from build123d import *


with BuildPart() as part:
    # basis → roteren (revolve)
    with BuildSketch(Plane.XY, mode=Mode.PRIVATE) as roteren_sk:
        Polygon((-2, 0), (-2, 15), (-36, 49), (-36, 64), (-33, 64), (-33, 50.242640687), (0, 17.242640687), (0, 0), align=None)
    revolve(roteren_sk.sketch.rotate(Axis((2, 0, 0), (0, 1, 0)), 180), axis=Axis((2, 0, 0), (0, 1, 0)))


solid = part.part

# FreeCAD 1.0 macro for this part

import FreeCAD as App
import Part
import Sketcher
Q = App.Units.Quantity


def add_polygon(sketch, points):
    """Adds a closed chain of lines whose ends are joined by coincident constraints."""
    first, n = sketch.GeometryCount, len(points)
    for a, b in zip(points, points[1:] + points[:1]):
        sketch.addGeometry(Part.LineSegment(App.Vector(*a, 0), App.Vector(*b, 0)), False)
    for i in range(n):
        sketch.addConstraint(Sketcher.Constraint("Coincident", first + i, 2, first + (i + 1) % n, 1))

doc = App.newDocument("Part")
params = doc.addObject("Spreadsheet::Sheet", "Params")
for row, (alias, value) in enumerate([
    ("sketch1_width", "2 mm"),
    ("sketch1_width2", "3 mm"),
    ("sketch1_height", "15 mm"),
    ("sketch1_height2", "64 mm"),
    ("revolution_angle", "360 deg"),
], start=1):
    params.set(f"A{row}", alias)
    params.set(f"B{row}", "=" + value)
    params.setAlias(f"B{row}", alias)

body = doc.addObject("PartDesign::Body", "Body")

# Sketch on XY plane
sketch1 = doc.addObject("Sketcher::SketchObject", "Sketch")
body.addObject(sketch1)
sketch1.AttachmentSupport = (doc.XY_Plane, [""])
sketch1.MapMode = "FlatFace"
add_polygon(sketch1, [(-2, 15), (-2, 0), (0, 0), (0, 17.2), (-33, 50.2), (-33, 64), (-36, 64), (-36, 49)])  # lines 0-7
sketch1.addGeometry(Part.LineSegment(App.Vector(2, 0, 0), App.Vector(2, 64, 0)), True)  # axis
sketch1.addConstraint([
    Sketcher.Constraint("Vertical", 0),
    Sketcher.Constraint("Horizontal", 1),
    Sketcher.Constraint("Vertical", 2),
    Sketcher.Constraint("Vertical", 4),
    Sketcher.Constraint("Horizontal", 5),
    Sketcher.Constraint("Vertical", 6),
    Sketcher.Constraint("Vertical", 8),
    Sketcher.Constraint("Coincident", 1, 2, -1, 1),
    Sketcher.Constraint("Symmetric", 0, 2, 8, 1, -1, 1),
    Sketcher.Constraint("Parallel", 3, 7),
    Sketcher.Constraint("Horizontal", 5, 2, 8, 2),
    Sketcher.Constraint("Equal", 0, 6),
    Sketcher.Constraint("DistanceX", 1, 1, 1, 2, Q("2 mm")),
    Sketcher.Constraint("DistanceX", 5, 2, 5, 1, Q("3 mm")),
    Sketcher.Constraint("DistanceY", 0, 2, 0, 1, Q("15 mm")),
    Sketcher.Constraint("DistanceY", 8, 1, 8, 2, Q("64 mm")),
    Sketcher.Constraint("Angle", 3, Q("135 deg")),
    Sketcher.Constraint("DistanceY", 2, 1, 2, 2, Q("17.242641 mm")),
])
sketch1.setExpression("Constraints[20]", "Params.sketch1_width")
sketch1.setExpression("Constraints[21]", "Params.sketch1_width2")
sketch1.setExpression("Constraints[22]", "Params.sketch1_height")
sketch1.setExpression("Constraints[23]", "Params.sketch1_height2")
revolution = doc.addObject("PartDesign::Revolution", "Revolution")
body.addObject(revolution)
revolution.Profile = sketch1
revolution.ReferenceAxis = (sketch1, ["Axis0"])
revolution.setExpression("Angle", "Params.revolution_angle")

doc.recompute()
